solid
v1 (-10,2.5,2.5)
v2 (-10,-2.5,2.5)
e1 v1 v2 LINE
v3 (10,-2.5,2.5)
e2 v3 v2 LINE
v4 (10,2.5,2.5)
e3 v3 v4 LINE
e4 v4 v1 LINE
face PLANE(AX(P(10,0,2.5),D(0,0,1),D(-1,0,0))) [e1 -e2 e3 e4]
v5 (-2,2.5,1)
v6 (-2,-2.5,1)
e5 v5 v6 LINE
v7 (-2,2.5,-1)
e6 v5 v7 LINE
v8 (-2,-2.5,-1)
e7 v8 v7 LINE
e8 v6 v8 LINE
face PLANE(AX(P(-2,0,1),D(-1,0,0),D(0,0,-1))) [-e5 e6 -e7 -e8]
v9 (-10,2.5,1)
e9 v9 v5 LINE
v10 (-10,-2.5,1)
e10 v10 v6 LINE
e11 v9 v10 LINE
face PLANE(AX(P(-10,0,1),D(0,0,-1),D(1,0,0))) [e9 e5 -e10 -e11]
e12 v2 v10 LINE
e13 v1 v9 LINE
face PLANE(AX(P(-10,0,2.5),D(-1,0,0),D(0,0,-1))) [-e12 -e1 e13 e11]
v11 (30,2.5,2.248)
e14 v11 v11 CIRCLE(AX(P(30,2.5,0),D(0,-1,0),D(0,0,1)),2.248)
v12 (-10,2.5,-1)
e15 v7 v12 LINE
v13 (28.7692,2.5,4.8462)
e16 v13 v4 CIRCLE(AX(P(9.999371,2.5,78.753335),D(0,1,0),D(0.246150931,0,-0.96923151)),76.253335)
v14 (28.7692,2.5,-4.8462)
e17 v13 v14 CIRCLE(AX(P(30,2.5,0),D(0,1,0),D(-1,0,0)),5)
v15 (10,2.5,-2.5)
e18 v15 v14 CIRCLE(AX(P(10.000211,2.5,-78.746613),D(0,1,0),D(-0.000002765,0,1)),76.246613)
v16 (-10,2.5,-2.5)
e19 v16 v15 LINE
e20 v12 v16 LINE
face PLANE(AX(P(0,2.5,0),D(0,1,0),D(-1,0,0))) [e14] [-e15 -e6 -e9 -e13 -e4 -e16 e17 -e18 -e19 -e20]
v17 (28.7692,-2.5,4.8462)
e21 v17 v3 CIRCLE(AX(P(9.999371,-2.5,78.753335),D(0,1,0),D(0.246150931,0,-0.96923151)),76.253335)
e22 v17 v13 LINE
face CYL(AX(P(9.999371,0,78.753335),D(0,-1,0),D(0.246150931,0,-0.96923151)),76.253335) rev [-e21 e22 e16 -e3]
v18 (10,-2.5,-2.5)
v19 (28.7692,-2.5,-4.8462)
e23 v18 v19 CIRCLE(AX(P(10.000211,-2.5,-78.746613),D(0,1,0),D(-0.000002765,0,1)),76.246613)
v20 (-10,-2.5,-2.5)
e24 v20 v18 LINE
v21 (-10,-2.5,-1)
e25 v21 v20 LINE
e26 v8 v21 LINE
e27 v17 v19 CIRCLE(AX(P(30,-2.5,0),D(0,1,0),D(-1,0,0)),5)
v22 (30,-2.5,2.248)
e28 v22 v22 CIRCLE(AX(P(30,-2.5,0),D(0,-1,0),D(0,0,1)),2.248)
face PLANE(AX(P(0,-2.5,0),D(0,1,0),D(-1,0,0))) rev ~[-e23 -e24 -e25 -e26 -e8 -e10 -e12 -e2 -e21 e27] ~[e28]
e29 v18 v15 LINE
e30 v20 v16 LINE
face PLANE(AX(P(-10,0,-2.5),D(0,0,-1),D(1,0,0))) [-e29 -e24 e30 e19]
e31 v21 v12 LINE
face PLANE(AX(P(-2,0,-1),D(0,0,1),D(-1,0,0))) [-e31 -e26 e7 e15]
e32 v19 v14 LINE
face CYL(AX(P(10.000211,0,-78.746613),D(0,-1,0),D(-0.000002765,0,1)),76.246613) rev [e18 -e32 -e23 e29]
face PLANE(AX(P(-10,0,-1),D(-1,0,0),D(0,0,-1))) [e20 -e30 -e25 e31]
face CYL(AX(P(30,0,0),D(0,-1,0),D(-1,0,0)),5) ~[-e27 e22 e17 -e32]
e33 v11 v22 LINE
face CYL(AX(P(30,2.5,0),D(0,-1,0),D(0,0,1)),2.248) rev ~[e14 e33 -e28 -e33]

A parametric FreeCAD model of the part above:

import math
import FreeCAD as App
import Part
import Sketcher
from FreeCAD import Vector
Q = App.Units.Quantity

doc = App.newDocument("Part")
params = doc.addObject("Spreadsheet::Sheet", "Params")
for row, (alias, value) in enumerate([
    ("sketch1_radius", "5 mm"),
    ("sketch1_width", "20 mm"),
    ("sketch1_width2", "20 mm"),
    ("sketch1_width3", "8 mm"),
    ("sketch1_width4", "8 mm"),
    ("pad1_length", "5 mm"),
    ("hole_diameter", "4.496 mm"),
], start=1):
    params.set(f"A{row}", alias)
    params.set(f"B{row}", "=" + value)
    params.setAlias(f"B{row}", alias)

body = doc.addObject("PartDesign::Body", "Body")

sketch1 = body.newObject("Sketcher::SketchObject", "Sketch")
sketch1.AttachmentSupport = (doc.getObject("XZ_Plane"), [""])
sketch1.MapMode = "FlatFace"
sketch1.addGeometry(Part.LineSegment(Vector(-10, 2.5, 0), Vector(10, 2.5, 0)), False)
sketch1.addGeometry(Part.ArcOfCircle(Part.Circle(Vector(9.999371, 78.753335, 0), Vector(0, 0, 1), 76.253335), math.radians(-89.999527), math.radians(-75.75014)), False)
sketch1.addGeometry(Part.ArcOfCircle(Part.Circle(Vector(30, 0, 0), Vector(0, 0, 1), 5), math.radians(-104.250244), math.radians(104.250244)), False)
sketch1.addGeometry(Part.ArcOfCircle(Part.Circle(Vector(10.000211, -78.746613, 0), Vector(0, 0, 1), 76.246613), math.radians(75.749508), math.radians(90.000158)), False)
sketch1.addGeometry(Part.LineSegment(Vector(10, -2.5, 0), Vector(-10, -2.5, 0)), False)
sketch1.addGeometry(Part.LineSegment(Vector(-10, -2.5, 0), Vector(-10, -1, 0)), False)
sketch1.addGeometry(Part.LineSegment(Vector(-10, -1, 0), Vector(-2, -1, 0)), False)
sketch1.addGeometry(Part.LineSegment(Vector(-2, -1, 0), Vector(-2, 1, 0)), False)
sketch1.addGeometry(Part.LineSegment(Vector(-2, 1, 0), Vector(-10, 1, 0)), False)
sketch1.addGeometry(Part.LineSegment(Vector(-10, 1, 0), Vector(-10, 2.5, 0)), False)
sketch1.addConstraint(Sketcher.Constraint("Coincident", 0, 2, 1, 1))
sketch1.addConstraint(Sketcher.Constraint("Coincident", 1, 2, 2, 2))
sketch1.addConstraint(Sketcher.Constraint("Coincident", 2, 1, 3, 1))
sketch1.addConstraint(Sketcher.Constraint("Coincident", 3, 2, 4, 1))
sketch1.addConstraint(Sketcher.Constraint("Coincident", 4, 2, 5, 1))
sketch1.addConstraint(Sketcher.Constraint("Coincident", 5, 2, 6, 1))
sketch1.addConstraint(Sketcher.Constraint("Coincident", 6, 2, 7, 1))
sketch1.addConstraint(Sketcher.Constraint("Coincident", 7, 2, 8, 1))
sketch1.addConstraint(Sketcher.Constraint("Coincident", 8, 2, 9, 1))
sketch1.addConstraint(Sketcher.Constraint("Coincident", 9, 2, 0, 1))
sketch1.addConstraint(Sketcher.Constraint("Horizontal", 0))
sketch1.addConstraint(Sketcher.Constraint("Horizontal", 4))
sketch1.addConstraint(Sketcher.Constraint("Vertical", 5))
sketch1.addConstraint(Sketcher.Constraint("Horizontal", 6))
sketch1.addConstraint(Sketcher.Constraint("Vertical", 7))
sketch1.addConstraint(Sketcher.Constraint("Horizontal", 8))
sketch1.addConstraint(Sketcher.Constraint("Vertical", 9))
sketch1.addConstraint(Sketcher.Constraint("PointOnObject", 2, 3, -1))
sketch1.addConstraint(Sketcher.Constraint("Radius", 2, Q("5 mm")))
sketch1.addConstraint(Sketcher.Constraint("DistanceX", 0, 1, 0, 2, Q("20 mm")))
sketch1.addConstraint(Sketcher.Constraint("DistanceX", 4, 2, 4, 1, Q("20 mm")))
sketch1.addConstraint(Sketcher.Constraint("DistanceX", 6, 1, 6, 2, Q("8 mm")))
sketch1.addConstraint(Sketcher.Constraint("DistanceX", 8, 2, 8, 1, Q("8 mm")))
sketch1.addConstraint(Sketcher.Constraint("DistanceY", 7, 1, 7, 2, Q("2 mm")))
sketch1.addConstraint(Sketcher.Constraint("DistanceX", -1, 1, 2, 3, Q("30 mm")))
sketch1.addConstraint(Sketcher.Constraint("DistanceX", -1, 1, 0, 2, Q("10 mm")))
sketch1.addConstraint(Sketcher.Constraint("DistanceY", 3, 2, 0, 2, Q("5 mm")))
sketch1.addConstraint(Sketcher.Constraint("DistanceY", 5, 1, 5, 2, Q("1.5 mm")))
sketch1.addConstraint(Sketcher.Constraint("DistanceY", 5, 2, -1, 1, Q("1 mm")))
sketch1.addConstraint(Sketcher.Constraint("DistanceX", -1, 1, 3, 3, Q("10.0002 mm")))
sketch1.addConstraint(Sketcher.Constraint("Radius", 1, Q("76.2533 mm")))
sketch1.addConstraint(Sketcher.Constraint("DistanceX", 3, 3, 1, 2, Q("18.769 mm")))
sketch1.addConstraint(Sketcher.Constraint("DistanceX", 3, 3, 2, 1, Q("18.769 mm")))
sketch1.setExpression("Constraints[18]", "Params.sketch1_radius")
sketch1.setExpression("Constraints[19]", "Params.sketch1_width")
sketch1.setExpression("Constraints[20]", "Params.sketch1_width2")
sketch1.setExpression("Constraints[21]", "Params.sketch1_width3")
sketch1.setExpression("Constraints[22]", "Params.sketch1_width4")
pad1 = body.newObject("PartDesign::Pad", "Pad")
pad1.Profile = sketch1
pad1.setExpression("Length", "Params.pad1_length")
pad1.Midplane = True

sketch2 = body.newObject("Sketcher::SketchObject", "Sketch001")
sketch2.AttachmentSupport = (doc.getObject("XZ_Plane"), [""])
sketch2.MapMode = "FlatFace"
sketch2.AttachmentOffset = App.Placement(Vector(0, 0, -2.5), App.Rotation())
sketch2.addGeometry(Part.Circle(Vector(30, 0, 0), Vector(0, 0, 1), 2.2), False)
sketch2.addConstraint(Sketcher.Constraint("PointOnObject", 0, 3, -1))
sketch2.addConstraint(Sketcher.Constraint("Diameter", 0, Q("4.496 mm")))
sketch2.addConstraint(Sketcher.Constraint("DistanceX", -1, 1, 0, 3, Q("30 mm")))
doc.recompute()
hole = body.newObject("PartDesign::Hole", "Hole")
hole.Profile = sketch2
hole.ThreadType = "None"
hole.setExpression("Diameter", "Params.hole_diameter")
hole.DepthType = "ThroughAll"
hole.Reversed = True

doc.recompute()
